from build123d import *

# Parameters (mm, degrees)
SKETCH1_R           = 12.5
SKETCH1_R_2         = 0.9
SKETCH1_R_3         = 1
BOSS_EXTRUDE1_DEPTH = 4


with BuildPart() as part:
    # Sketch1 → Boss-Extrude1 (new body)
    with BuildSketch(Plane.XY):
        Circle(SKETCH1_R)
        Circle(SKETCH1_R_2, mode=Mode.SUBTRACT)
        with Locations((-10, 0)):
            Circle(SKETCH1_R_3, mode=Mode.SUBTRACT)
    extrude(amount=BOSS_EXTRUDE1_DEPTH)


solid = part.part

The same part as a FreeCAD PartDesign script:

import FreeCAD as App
import Part
import Sketcher

V = App.Vector

doc = App.newDocument("Part")
body = doc.addObject("PartDesign::Body", "Body")

sketch1 = doc.addObject("Sketcher::SketchObject", "Sketch")
body.addObject(sketch1)
sketch1.AttachmentSupport = (doc.XY_Plane, [""])
sketch1.MapMode = "FlatFace"
sketch1.addGeometry([
    Part.Circle(V(0, 0, 0), V(0, 0, 1), 12.5),
    Part.Circle(V(-10, 0, 0), V(0, 0, 1), 1),
    Part.Circle(V(0, 0, 0), V(0, 0, 1), 0.9),
], False)
sketch1.addConstraint([
    Sketcher.Constraint("Coincident", 0, 3, -1, 1),
    Sketcher.Constraint("Coincident", 2, 3, -1, 1),
    Sketcher.Constraint("PointOnObject", 1, 3, -1),
    Sketcher.Constraint("Diameter", 0, 25.0),
    Sketcher.Constraint("Diameter", 1, 2.0),
    Sketcher.Constraint("Diameter", 2, 1.8),
    Sketcher.Constraint("DistanceX", 1, 3, -1, 1, 10.0),
])
pad1 = doc.addObject("PartDesign::Pad", "Pad")
body.addObject(pad1)
pad1.Profile = sketch1
pad1.Length = 4

doc.recompute()
